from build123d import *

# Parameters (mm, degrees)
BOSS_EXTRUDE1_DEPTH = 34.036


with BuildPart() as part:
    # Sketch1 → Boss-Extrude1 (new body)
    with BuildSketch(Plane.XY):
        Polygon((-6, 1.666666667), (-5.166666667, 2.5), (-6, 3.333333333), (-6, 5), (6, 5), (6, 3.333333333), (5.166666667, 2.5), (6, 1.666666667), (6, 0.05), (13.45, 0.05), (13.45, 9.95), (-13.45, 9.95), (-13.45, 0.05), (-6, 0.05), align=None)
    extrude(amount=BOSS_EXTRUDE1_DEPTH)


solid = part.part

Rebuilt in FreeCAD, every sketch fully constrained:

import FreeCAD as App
import Part
import Sketcher

V = App.Vector


def add_polygon(sketch, points):
    """Adds a closed chain of lines whose ends are joined by coincident constraints."""
    first, n = sketch.GeometryCount, len(points)
    for a, b in zip(points, points[1:] + points[:1]):
        sketch.addGeometry(Part.LineSegment(App.Vector(*a, 0), App.Vector(*b, 0)), False)
    for i in range(n):
        sketch.addConstraint(Sketcher.Constraint("Coincident", first + i, 2, first + (i + 1) % n, 1))

doc = App.newDocument("Part")
params = doc.addObject("Spreadsheet::Sheet", "Params")
for row, (alias, value) in enumerate([
    ("sketch1_width", "12 mm"),
    ("sketch1_width2", "26.9 mm"),
    ("sketch1_height", "9.9 mm"),
    ("pad1_length", "34.036 mm"),
], start=1):
    params.set(f"A{row}", alias)
    params.set(f"B{row}", "=" + value)
    params.setAlias(f"B{row}", alias)

body = doc.addObject("PartDesign::Body", "Body")

sketch1 = doc.addObject("Sketcher::SketchObject", "Sketch")
body.addObject(sketch1)
sketch1.AttachmentSupport = (doc.XY_Plane, [""])
sketch1.MapMode = "FlatFace"
add_polygon(sketch1, [(-6, 1.666667), (-5.166667, 2.5), (-6, 3.333333), (-6, 5), (6, 5), (6, 3.333333), (5.166667, 2.5), (6, 1.666667), (6, 0.05), (13.45, 0.05), (13.45, 9.95), (-13.45, 9.95), (-13.45, 0.05), (-6, 0.05)])
sketch1.addConstraint(Sketcher.Constraint("Vertical", 2))
sketch1.addConstraint(Sketcher.Constraint("Horizontal", 3))
sketch1.addConstraint(Sketcher.Constraint("Vertical", 4))
sketch1.addConstraint(Sketcher.Constraint("Vertical", 7))
sketch1.addConstraint(Sketcher.Constraint("Horizontal", 8))
sketch1.addConstraint(Sketcher.Constraint("Vertical", 9))
sketch1.addConstraint(Sketcher.Constraint("Horizontal", 10))
sketch1.addConstraint(Sketcher.Constraint("Vertical", 11))
sketch1.addConstraint(Sketcher.Constraint("Horizontal", 12))
sketch1.addConstraint(Sketcher.Constraint("Vertical", 13))
sketch1.addConstraint(Sketcher.Constraint("Symmetric", 1, 2, 4, 2, -2))
sketch1.addConstraint(Sketcher.Constraint("Symmetric", 0, 2, 5, 2, -2))
sketch1.addConstraint(Sketcher.Constraint("Symmetric", 8, 2, 11, 2, -2))
sketch1.addConstraint(Sketcher.Constraint("Symmetric", 6, 2, 13, 2, -2))
sketch1.addConstraint(Sketcher.Constraint("Perpendicular", 0, 1))
sketch1.addConstraint(Sketcher.Constraint("Perpendicular", 1, 5))
sketch1.addConstraint(Sketcher.Constraint("Vertical", 4, 2, 6, 2))
sketch1.addConstraint(Sketcher.Constraint("DistanceX", 3, 1, 3, 2, 12.0))
sketch1.addConstraint(Sketcher.Constraint("DistanceX", 10, 2, 10, 1, 26.9))
sketch1.addConstraint(Sketcher.Constraint("DistanceY", 9, 1, 9, 2, 9.9))
sketch1.addConstraint(Sketcher.Constraint("DistanceY", -1, 1, 2, 2, 5.0))
sketch1.addConstraint(Sketcher.Constraint("DistanceY", -1, 1, 0, 2, 2.5))
sketch1.addConstraint(Sketcher.Constraint("DistanceY", -1, 1, 7, 2, 0.05))
sketch1.addConstraint(Sketcher.Constraint("Distance", 0, 1.178511))
sketch1.setExpression("Constraints[31]", "Params.sketch1_width")
sketch1.setExpression("Constraints[32]", "Params.sketch1_width2")
sketch1.setExpression("Constraints[33]", "Params.sketch1_height")
pad1 = doc.addObject("PartDesign::Pad", "Pad")
body.addObject(pad1)
pad1.Profile = sketch1
pad1.setExpression("Length", "Params.pad1_length")

doc.recompute()
